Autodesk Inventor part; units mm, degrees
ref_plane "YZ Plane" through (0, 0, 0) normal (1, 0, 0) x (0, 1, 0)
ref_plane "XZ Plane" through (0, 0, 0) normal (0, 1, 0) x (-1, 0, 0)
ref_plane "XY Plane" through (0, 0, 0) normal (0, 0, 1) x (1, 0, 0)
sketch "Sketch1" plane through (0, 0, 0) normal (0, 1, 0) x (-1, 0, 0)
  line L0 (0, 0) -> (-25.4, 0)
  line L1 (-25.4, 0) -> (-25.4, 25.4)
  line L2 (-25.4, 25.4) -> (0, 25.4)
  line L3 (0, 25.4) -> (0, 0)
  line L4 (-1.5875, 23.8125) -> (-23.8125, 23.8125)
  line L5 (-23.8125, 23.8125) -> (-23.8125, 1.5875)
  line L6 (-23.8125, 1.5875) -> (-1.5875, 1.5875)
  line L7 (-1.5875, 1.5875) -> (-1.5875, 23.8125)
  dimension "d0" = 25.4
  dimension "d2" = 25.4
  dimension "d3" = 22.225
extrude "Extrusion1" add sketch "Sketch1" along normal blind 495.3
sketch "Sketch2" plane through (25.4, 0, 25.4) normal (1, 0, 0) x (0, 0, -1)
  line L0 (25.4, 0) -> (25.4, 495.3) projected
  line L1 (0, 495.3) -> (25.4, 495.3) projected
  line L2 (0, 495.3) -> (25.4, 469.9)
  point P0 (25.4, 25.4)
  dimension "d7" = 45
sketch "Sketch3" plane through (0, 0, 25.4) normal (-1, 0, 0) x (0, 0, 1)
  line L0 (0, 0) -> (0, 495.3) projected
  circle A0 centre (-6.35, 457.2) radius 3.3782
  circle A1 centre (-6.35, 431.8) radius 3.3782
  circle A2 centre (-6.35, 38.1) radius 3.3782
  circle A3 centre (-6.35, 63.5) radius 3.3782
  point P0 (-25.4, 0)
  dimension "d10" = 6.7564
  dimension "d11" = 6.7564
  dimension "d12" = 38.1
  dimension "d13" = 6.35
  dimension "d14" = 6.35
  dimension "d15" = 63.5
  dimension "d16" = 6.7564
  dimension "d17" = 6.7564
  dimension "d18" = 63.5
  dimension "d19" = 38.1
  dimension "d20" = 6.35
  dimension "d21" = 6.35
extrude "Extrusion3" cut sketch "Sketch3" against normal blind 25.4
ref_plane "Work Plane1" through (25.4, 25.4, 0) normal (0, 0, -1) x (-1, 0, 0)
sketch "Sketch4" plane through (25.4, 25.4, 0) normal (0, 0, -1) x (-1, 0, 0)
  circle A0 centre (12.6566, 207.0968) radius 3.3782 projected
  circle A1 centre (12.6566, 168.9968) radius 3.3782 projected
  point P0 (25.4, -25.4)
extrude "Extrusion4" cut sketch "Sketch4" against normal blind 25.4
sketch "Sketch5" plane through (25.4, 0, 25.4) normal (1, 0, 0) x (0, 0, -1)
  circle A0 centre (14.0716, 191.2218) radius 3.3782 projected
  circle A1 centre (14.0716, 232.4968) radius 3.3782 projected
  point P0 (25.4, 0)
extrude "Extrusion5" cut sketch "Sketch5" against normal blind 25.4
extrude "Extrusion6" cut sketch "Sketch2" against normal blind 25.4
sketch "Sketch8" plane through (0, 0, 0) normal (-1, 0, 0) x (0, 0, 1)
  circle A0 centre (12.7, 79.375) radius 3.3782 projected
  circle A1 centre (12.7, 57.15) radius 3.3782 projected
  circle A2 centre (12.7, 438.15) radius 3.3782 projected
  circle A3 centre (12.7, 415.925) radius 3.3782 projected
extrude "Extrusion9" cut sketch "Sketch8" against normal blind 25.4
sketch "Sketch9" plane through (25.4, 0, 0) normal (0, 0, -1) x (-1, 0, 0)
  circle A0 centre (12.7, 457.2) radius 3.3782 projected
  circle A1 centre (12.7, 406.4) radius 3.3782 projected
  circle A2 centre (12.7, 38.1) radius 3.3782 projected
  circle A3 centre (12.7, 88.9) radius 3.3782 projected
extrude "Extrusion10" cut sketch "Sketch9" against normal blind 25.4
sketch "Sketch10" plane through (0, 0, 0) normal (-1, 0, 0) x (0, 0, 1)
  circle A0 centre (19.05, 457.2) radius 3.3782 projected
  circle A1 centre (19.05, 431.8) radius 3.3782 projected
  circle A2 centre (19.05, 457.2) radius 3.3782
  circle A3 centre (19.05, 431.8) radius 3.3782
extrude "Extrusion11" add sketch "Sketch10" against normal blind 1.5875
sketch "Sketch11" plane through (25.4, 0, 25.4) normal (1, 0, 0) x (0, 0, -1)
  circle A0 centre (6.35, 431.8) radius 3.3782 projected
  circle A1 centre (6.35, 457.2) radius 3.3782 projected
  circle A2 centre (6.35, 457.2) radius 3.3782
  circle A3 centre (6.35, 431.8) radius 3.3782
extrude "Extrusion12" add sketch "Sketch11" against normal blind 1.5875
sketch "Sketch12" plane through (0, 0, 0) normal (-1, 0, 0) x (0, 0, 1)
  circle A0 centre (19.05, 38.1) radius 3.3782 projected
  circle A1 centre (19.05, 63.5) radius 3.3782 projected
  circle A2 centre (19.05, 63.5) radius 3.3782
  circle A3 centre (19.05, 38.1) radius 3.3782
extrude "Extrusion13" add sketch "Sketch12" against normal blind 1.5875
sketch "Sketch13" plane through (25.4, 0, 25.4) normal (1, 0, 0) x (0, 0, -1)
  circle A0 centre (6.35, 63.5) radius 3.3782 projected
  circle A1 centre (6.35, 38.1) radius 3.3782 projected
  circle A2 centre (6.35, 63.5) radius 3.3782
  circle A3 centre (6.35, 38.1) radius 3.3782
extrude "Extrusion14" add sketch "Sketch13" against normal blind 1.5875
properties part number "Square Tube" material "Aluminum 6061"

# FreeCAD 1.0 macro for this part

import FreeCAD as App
import Part
import Sketcher
Q = App.Units.Quantity

doc = App.newDocument("Part")
body = doc.addObject("PartDesign::Body", "Body")

sketch1 = body.newObject("Sketcher::SketchObject", "Sketch")
sketch1.AttachmentSupport = (doc.getObject("XZ_Plane"), [""])
sketch1.MapMode = "FlatFace"
sketch1.addGeometry(Part.LineSegment(App.Vector(25, 0, 0), App.Vector(0, 0, 0)), False)
sketch1.addGeometry(Part.LineSegment(App.Vector(0, 0, 0), App.Vector(0, 25, 0)), False)
sketch1.addGeometry(Part.LineSegment(App.Vector(0, 25, 0), App.Vector(25, 25, 0)), False)
sketch1.addGeometry(Part.LineSegment(App.Vector(25, 25, 0), App.Vector(25, 0, 0)), False)
sketch1.addGeometry(Part.LineSegment(App.Vector(24, 24, 0), App.Vector(2, 24, 0)), False)
sketch1.addGeometry(Part.LineSegment(App.Vector(2, 24, 0), App.Vector(2, 2, 0)), False)
sketch1.addGeometry(Part.LineSegment(App.Vector(2, 2, 0), App.Vector(24, 2, 0)), False)
sketch1.addGeometry(Part.LineSegment(App.Vector(24, 2, 0), App.Vector(24, 24, 0)), False)
sketch1.addConstraint(Sketcher.Constraint("Coincident", 0, 2, 1, 1))
sketch1.addConstraint(Sketcher.Constraint("Coincident", 1, 2, 2, 1))
sketch1.addConstraint(Sketcher.Constraint("Coincident", 2, 2, 3, 1))
sketch1.addConstraint(Sketcher.Constraint("Coincident", 3, 2, 0, 1))
sketch1.addConstraint(Sketcher.Constraint("Coincident", 4, 2, 5, 1))
sketch1.addConstraint(Sketcher.Constraint("Coincident", 5, 2, 6, 1))
sketch1.addConstraint(Sketcher.Constraint("Coincident", 6, 2, 7, 1))
sketch1.addConstraint(Sketcher.Constraint("Coincident", 7, 2, 4, 1))
sketch1.addConstraint(Sketcher.Constraint("Horizontal", 0))
sketch1.addConstraint(Sketcher.Constraint("Vertical", 1))
sketch1.addConstraint(Sketcher.Constraint("Horizontal", 2))
sketch1.addConstraint(Sketcher.Constraint("Vertical", 3))
sketch1.addConstraint(Sketcher.Constraint("Horizontal", 4))
sketch1.addConstraint(Sketcher.Constraint("Vertical", 5))
sketch1.addConstraint(Sketcher.Constraint("Horizontal", 6))
sketch1.addConstraint(Sketcher.Constraint("Vertical", 7))
sketch1.addConstraint(Sketcher.Constraint("Coincident", 0, 2, -1, 1))
sketch1.addConstraint(Sketcher.Constraint("Equal", 2, 1))
sketch1.addConstraint(Sketcher.Constraint("Equal", 6, 5))
sketch1.addConstraint(Sketcher.Constraint("DistanceX", 0, 2, 0, 1, Q("1 in")))
sketch1.addConstraint(Sketcher.Constraint("DistanceX", 4, 2, 4, 1, Q("0.875 in")))
sketch1.addConstraint(Sketcher.Constraint("DistanceX", -1, 1, 4, 2, Q("0.0625 in")))
sketch1.addConstraint(Sketcher.Constraint("DistanceY", -1, 1, 4, 2, Q("0.9375 in")))
pad1 = body.newObject("PartDesign::Pad", "Pad")
pad1.Profile = sketch1
pad1.Length = Q("19.5 in")
pad1.Reversed = True

sketch2 = body.newObject("Sketcher::SketchObject", "Sketch001")
sketch2.AttachmentSupport = (doc.getObject("YZ_Plane"), [""])
sketch2.MapMode = "FlatFace"
sketch2.addGeometry(Part.Circle(App.Vector(457.2, 19.1, 0), App.Vector(0, 0, 1), 3.4), False)
sketch2.addGeometry(Part.Circle(App.Vector(431.8, 19.1, 0), App.Vector(0, 0, 1), 3.4), False)
sketch2.addGeometry(Part.Circle(App.Vector(38.1, 19.1, 0), App.Vector(0, 0, 1), 3.4), False)
sketch2.addGeometry(Part.Circle(App.Vector(63.5, 19.1, 0), App.Vector(0, 0, 1), 3.4), False)
sketch2.addConstraint(Sketcher.Constraint("Equal", 0, 1))
sketch2.addConstraint(Sketcher.Constraint("Equal", 1, 2))
sketch2.addConstraint(Sketcher.Constraint("Equal", 2, 3))
sketch2.addConstraint(Sketcher.Constraint("Horizontal", 0, 3, 1, 3))
sketch2.addConstraint(Sketcher.Constraint("Horizontal", 1, 3, 2, 3))
sketch2.addConstraint(Sketcher.Constraint("Horizontal", 2, 3, 3, 3))
sketch2.addConstraint(Sketcher.Constraint("Diameter", 0, Q("0.266 in")))
sketch2.addConstraint(Sketcher.Constraint("DistanceX", -1, 1, 2, 3, Q("1.5 in")))
sketch2.addConstraint(Sketcher.Constraint("DistanceX", -1, 1, 3, 3, Q("2.5 in")))
sketch2.addConstraint(Sketcher.Constraint("DistanceX", -1, 1, 0, 3, Q("18 in")))
sketch2.addConstraint(Sketcher.Constraint("DistanceX", -1, 1, 1, 3, Q("17 in")))
sketch2.addConstraint(Sketcher.Constraint("DistanceY", -1, 1, 0, 3, Q("0.75 in")))
pocket1 = body.newObject("PartDesign::Pocket", "Pocket")
pocket1.Profile = sketch2
pocket1.Length = Q("1 in")
pocket1.Reversed = True

sketch3 = body.newObject("Sketcher::SketchObject", "Sketch002")
sketch3.AttachmentSupport = (doc.getObject("XY_Plane"), [""])
sketch3.MapMode = "FlatFace"
sketch3.addGeometry(Part.Circle(App.Vector(12.7, 232.5, 0), App.Vector(0, 0, 1), 3.4), False)
sketch3.addGeometry(Part.Circle(App.Vector(12.7, 194.4, 0), App.Vector(0, 0, 1), 3.4), False)
sketch3.addConstraint(Sketcher.Constraint("Equal", 0, 1))
sketch3.addConstraint(Sketcher.Constraint("Vertical", 0, 3, 1, 3))
sketch3.addConstraint(Sketcher.Constraint("Diameter", 0, Q("0.266 in")))
sketch3.addConstraint(Sketcher.Constraint("DistanceY", 1, 3, 0, 3, Q("1.5 in")))
sketch3.addConstraint(Sketcher.Constraint("DistanceX", -1, 1, 0, 3, Q("0.5017 in")))
sketch3.addConstraint(Sketcher.Constraint("DistanceY", -1, 1, 0, 3, 232.4968))
pocket2 = body.newObject("PartDesign::Pocket", "Pocket001")
pocket2.Profile = sketch3
pocket2.Length = Q("1 in")
pocket2.Reversed = True

sketch4 = body.newObject("Sketcher::SketchObject", "Sketch003")
sketch4.AttachmentSupport = (doc.getObject("YZ_Plane"), [""])
sketch4.MapMode = "FlatFace"
sketch4.AttachmentOffset = App.Placement(App.Vector(0, 0, 1 * 25.4), App.Rotation())
sketch4.addGeometry(Part.Circle(App.Vector(191.2, 11.3, 0), App.Vector(0, 0, 1), 3.4), False)
sketch4.addGeometry(Part.Circle(App.Vector(232.5, 11.3, 0), App.Vector(0, 0, 1), 3.4), False)
sketch4.addConstraint(Sketcher.Constraint("Equal", 0, 1))
sketch4.addConstraint(Sketcher.Constraint("Horizontal", 0, 3, 1, 3))
sketch4.addConstraint(Sketcher.Constraint("Diameter", 0, Q("0.266 in")))
sketch4.addConstraint(Sketcher.Constraint("DistanceY", -1, 1, 0, 3, Q("0.446 in")))
sketch4.addConstraint(Sketcher.Constraint("DistanceX", 0, 3, 1, 3, Q("1.625 in")))
sketch4.addConstraint(Sketcher.Constraint("DistanceX", -1, 1, 0, 3, 191.2218))
pocket3 = body.newObject("PartDesign::Pocket", "Pocket002")
pocket3.Profile = sketch4
pocket3.Length = Q("1 in")

sketch5 = body.newObject("Sketcher::SketchObject", "Sketch004")
sketch5.AttachmentSupport = (doc.getObject("YZ_Plane"), [""])
sketch5.MapMode = "FlatFace"
sketch5.AttachmentOffset = App.Placement(App.Vector(0, 0, 1 * 25.4), App.Rotation())
sketch5.addGeometry(Part.LineSegment(App.Vector(495, 25, 0), App.Vector(470, 0, 0)), False)
sketch5.addGeometry(Part.LineSegment(App.Vector(470, 0, 0), App.Vector(495, 0, 0)), False)
sketch5.addGeometry(Part.LineSegment(App.Vector(495, 0, 0), App.Vector(495, 25, 0)), False)
sketch5.addConstraint(Sketcher.Constraint("Coincident", 0, 2, 1, 1))
sketch5.addConstraint(Sketcher.Constraint("Coincident", 1, 2, 2, 1))
sketch5.addConstraint(Sketcher.Constraint("Coincident", 2, 2, 0, 1))
sketch5.addConstraint(Sketcher.Constraint("Horizontal", 1))
sketch5.addConstraint(Sketcher.Constraint("Vertical", 2))
sketch5.addConstraint(Sketcher.Constraint("PointOnObject", 0, 2, -1))
sketch5.addConstraint(Sketcher.Constraint("Equal", 1, 2))
sketch5.addConstraint(Sketcher.Constraint("DistanceX", 1, 1, 1, 2, Q("1 in")))
sketch5.addConstraint(Sketcher.Constraint("DistanceX", -1, 1, 0, 2, Q("18.5 in")))
pocket4 = body.newObject("PartDesign::Pocket", "Pocket003")
pocket4.Profile = sketch5
pocket4.Length = Q("1 in")

sketch6 = body.newObject("Sketcher::SketchObject", "Sketch005")
sketch6.AttachmentSupport = (doc.getObject("YZ_Plane"), [""])
sketch6.MapMode = "FlatFace"
sketch6.addGeometry(Part.Circle(App.Vector(79.4, 12.7, 0), App.Vector(0, 0, 1), 3.4), False)
sketch6.addGeometry(Part.Circle(App.Vector(57.1, 12.7, 0), App.Vector(0, 0, 1), 3.4), False)
sketch6.addGeometry(Part.Circle(App.Vector(438.1, 12.7, 0), App.Vector(0, 0, 1), 3.4), False)
sketch6.addGeometry(Part.Circle(App.Vector(415.9, 12.7, 0), App.Vector(0, 0, 1), 3.4), False)
sketch6.addConstraint(Sketcher.Constraint("Equal", 0, 1))
sketch6.addConstraint(Sketcher.Constraint("Equal", 1, 2))
sketch6.addConstraint(Sketcher.Constraint("Equal", 2, 3))
sketch6.addConstraint(Sketcher.Constraint("Horizontal", 0, 3, 1, 3))
sketch6.addConstraint(Sketcher.Constraint("Horizontal", 1, 3, 2, 3))
sketch6.addConstraint(Sketcher.Constraint("Horizontal", 2, 3, 3, 3))
sketch6.addConstraint(Sketcher.Constraint("Diameter", 0, Q("0.266 in")))
sketch6.addConstraint(Sketcher.Constraint("DistanceX", 1, 3, 2, 3, Q("15 in")))
sketch6.addConstraint(Sketcher.Constraint("DistanceY", -1, 1, 0, 3, Q("0.5 in")))
sketch6.addConstraint(Sketcher.Constraint("DistanceX", -1, 1, 1, 3, Q("2.25 in")))
sketch6.addConstraint(Sketcher.Constraint("DistanceX", 0, 3, 3, 3, Q("13.25 in")))
sketch6.addConstraint(Sketcher.Constraint("DistanceX", -1, 1, 0, 3, Q("3.125 in")))
pocket5 = body.newObject("PartDesign::Pocket", "Pocket004")
pocket5.Profile = sketch6
pocket5.Length = Q("1 in")
pocket5.Reversed = True

sketch7 = body.newObject("Sketcher::SketchObject", "Sketch006")
sketch7.AttachmentSupport = (doc.getObject("XY_Plane"), [""])
sketch7.MapMode = "FlatFace"
sketch7.addGeometry(Part.Circle(App.Vector(12.7, 457.2, 0), App.Vector(0, 0, 1), 3.4), False)
sketch7.addGeometry(Part.Circle(App.Vector(12.7, 406.4, 0), App.Vector(0, 0, 1), 3.4), False)
sketch7.addGeometry(Part.Circle(App.Vector(12.7, 38.1, 0), App.Vector(0, 0, 1), 3.4), False)
sketch7.addGeometry(Part.Circle(App.Vector(12.7, 88.9, 0), App.Vector(0, 0, 1), 3.4), False)
sketch7.addConstraint(Sketcher.Constraint("Equal", 0, 1))
sketch7.addConstraint(Sketcher.Constraint("Equal", 1, 2))
sketch7.addConstraint(Sketcher.Constraint("Equal", 2, 3))
sketch7.addConstraint(Sketcher.Constraint("Vertical", 0, 3, 1, 3))
sketch7.addConstraint(Sketcher.Constraint("Vertical", 1, 3, 2, 3))
sketch7.addConstraint(Sketcher.Constraint("Vertical", 2, 3, 3, 3))
sketch7.addConstraint(Sketcher.Constraint("Diameter", 0, Q("0.266 in")))
sketch7.addConstraint(Sketcher.Constraint("DistanceY", -1, 1, 0, 3, Q("18 in")))
sketch7.addConstraint(Sketcher.Constraint("DistanceY", -1, 1, 1, 3, Q("16 in")))
sketch7.addConstraint(Sketcher.Constraint("DistanceY", 2, 3, 3, 3, Q("2 in")))
sketch7.addConstraint(Sketcher.Constraint("DistanceX", -1, 1, 0, 3, Q("0.5 in")))
sketch7.addConstraint(Sketcher.Constraint("DistanceY", -1, 1, 2, 3, Q("1.5 in")))
pocket6 = body.newObject("PartDesign::Pocket", "Pocket005")
pocket6.Profile = sketch7
pocket6.Length = Q("1 in")
pocket6.Reversed = True

sketch8 = body.newObject("Sketcher::SketchObject", "Sketch007")
sketch8.AttachmentSupport = (doc.getObject("YZ_Plane"), [""])
sketch8.MapMode = "FlatFace"
sketch8.addGeometry(Part.Circle(App.Vector(457.2, 19.1, 0), App.Vector(0, 0, 1), 3.4), False)
sketch8.addGeometry(Part.Circle(App.Vector(431.8, 19.1, 0), App.Vector(0, 0, 1), 3.4), False)
sketch8.addConstraint(Sketcher.Constraint("Equal", 0, 1))
sketch8.addConstraint(Sketcher.Constraint("Horizontal", 0, 3, 1, 3))
sketch8.addConstraint(Sketcher.Constraint("Diameter", 0, Q("0.266 in")))
sketch8.addConstraint(Sketcher.Constraint("DistanceX", -1, 1, 0, 3, Q("18 in")))
sketch8.addConstraint(Sketcher.Constraint("DistanceX", -1, 1, 1, 3, Q("17 in")))
sketch8.addConstraint(Sketcher.Constraint("DistanceY", -1, 1, 0, 3, Q("0.75 in")))
pad2 = body.newObject("PartDesign::Pad", "Pad001")
pad2.Profile = sketch8
pad2.Length = Q("0.0625 in")

sketch9 = body.newObject("Sketcher::SketchObject", "Sketch008")
sketch9.AttachmentSupport = (doc.getObject("YZ_Plane"), [""])
sketch9.MapMode = "FlatFace"
sketch9.AttachmentOffset = App.Placement(App.Vector(0, 0, 1 * 25.4), App.Rotation())
sketch9.addGeometry(Part.Circle(App.Vector(431.8, 19.1, 0), App.Vector(0, 0, 1), 3.4), False)
sketch9.addGeometry(Part.Circle(App.Vector(457.2, 19.1, 0), App.Vector(0, 0, 1), 3.4), False)
sketch9.addConstraint(Sketcher.Constraint("Equal", 0, 1))
sketch9.addConstraint(Sketcher.Constraint("Horizontal", 0, 3, 1, 3))
sketch9.addConstraint(Sketcher.Constraint("Diameter", 0, Q("0.266 in")))
sketch9.addConstraint(Sketcher.Constraint("DistanceX", -1, 1, 0, 3, Q("17 in")))
sketch9.addConstraint(Sketcher.Constraint("DistanceX", -1, 1, 1, 3, Q("18 in")))
sketch9.addConstraint(Sketcher.Constraint("DistanceY", -1, 1, 0, 3, Q("0.75 in")))
pad3 = body.newObject("PartDesign::Pad", "Pad002")
pad3.Profile = sketch9
pad3.Length = Q("0.0625 in")
pad3.Reversed = True

sketch10 = body.newObject("Sketcher::SketchObject", "Sketch009")
sketch10.AttachmentSupport = (doc.getObject("YZ_Plane"), [""])
sketch10.MapMode = "FlatFace"
sketch10.addGeometry(Part.Circle(App.Vector(38.1, 19.1, 0), App.Vector(0, 0, 1), 3.4), False)
sketch10.addGeometry(Part.Circle(App.Vector(63.5, 19.1, 0), App.Vector(0, 0, 1), 3.4), False)
sketch10.addConstraint(Sketcher.Constraint("Equal", 0, 1))
sketch10.addConstraint(Sketcher.Constraint("Horizontal", 0, 3, 1, 3))
sketch10.addConstraint(Sketcher.Constraint("Diameter", 0, Q("0.266 in")))
sketch10.addConstraint(Sketcher.Constraint("DistanceX", 0, 3, 1, 3, Q("1 in")))
sketch10.addConstraint(Sketcher.Constraint("DistanceX", -1, 1, 0, 3, Q("1.5 in")))
sketch10.addConstraint(Sketcher.Constraint("DistanceY", -1, 1, 0, 3, Q("0.75 in")))
pad4 = body.newObject("PartDesign::Pad", "Pad003")
pad4.Profile = sketch10
pad4.Length = Q("0.0625 in")

sketch11 = body.newObject("Sketcher::SketchObject", "Sketch010")
sketch11.AttachmentSupport = (doc.getObject("YZ_Plane"), [""])
sketch11.MapMode = "FlatFace"
sketch11.AttachmentOffset = App.Placement(App.Vector(0, 0, 1 * 25.4), App.Rotation())
sketch11.addGeometry(Part.Circle(App.Vector(63.5, 19.1, 0), App.Vector(0, 0, 1), 3.4), False)
sketch11.addGeometry(Part.Circle(App.Vector(38.1, 19.1, 0), App.Vector(0, 0, 1), 3.4), False)
sketch11.addConstraint(Sketcher.Constraint("Equal", 0, 1))
sketch11.addConstraint(Sketcher.Constraint("Horizontal", 0, 3, 1, 3))
sketch11.addConstraint(Sketcher.Constraint("Diameter", 0, Q("0.266 in")))
sketch11.addConstraint(Sketcher.Constraint("DistanceX", 1, 3, 0, 3, Q("1 in")))
sketch11.addConstraint(Sketcher.Constraint("DistanceX", -1, 1, 0, 3, Q("2.5 in")))
sketch11.addConstraint(Sketcher.Constraint("DistanceY", -1, 1, 0, 3, Q("0.75 in")))
pad5 = body.newObject("PartDesign::Pad", "Pad004")
pad5.Profile = sketch11
pad5.Length = Q("0.0625 in")
pad5.Reversed = True

doc.recompute()
